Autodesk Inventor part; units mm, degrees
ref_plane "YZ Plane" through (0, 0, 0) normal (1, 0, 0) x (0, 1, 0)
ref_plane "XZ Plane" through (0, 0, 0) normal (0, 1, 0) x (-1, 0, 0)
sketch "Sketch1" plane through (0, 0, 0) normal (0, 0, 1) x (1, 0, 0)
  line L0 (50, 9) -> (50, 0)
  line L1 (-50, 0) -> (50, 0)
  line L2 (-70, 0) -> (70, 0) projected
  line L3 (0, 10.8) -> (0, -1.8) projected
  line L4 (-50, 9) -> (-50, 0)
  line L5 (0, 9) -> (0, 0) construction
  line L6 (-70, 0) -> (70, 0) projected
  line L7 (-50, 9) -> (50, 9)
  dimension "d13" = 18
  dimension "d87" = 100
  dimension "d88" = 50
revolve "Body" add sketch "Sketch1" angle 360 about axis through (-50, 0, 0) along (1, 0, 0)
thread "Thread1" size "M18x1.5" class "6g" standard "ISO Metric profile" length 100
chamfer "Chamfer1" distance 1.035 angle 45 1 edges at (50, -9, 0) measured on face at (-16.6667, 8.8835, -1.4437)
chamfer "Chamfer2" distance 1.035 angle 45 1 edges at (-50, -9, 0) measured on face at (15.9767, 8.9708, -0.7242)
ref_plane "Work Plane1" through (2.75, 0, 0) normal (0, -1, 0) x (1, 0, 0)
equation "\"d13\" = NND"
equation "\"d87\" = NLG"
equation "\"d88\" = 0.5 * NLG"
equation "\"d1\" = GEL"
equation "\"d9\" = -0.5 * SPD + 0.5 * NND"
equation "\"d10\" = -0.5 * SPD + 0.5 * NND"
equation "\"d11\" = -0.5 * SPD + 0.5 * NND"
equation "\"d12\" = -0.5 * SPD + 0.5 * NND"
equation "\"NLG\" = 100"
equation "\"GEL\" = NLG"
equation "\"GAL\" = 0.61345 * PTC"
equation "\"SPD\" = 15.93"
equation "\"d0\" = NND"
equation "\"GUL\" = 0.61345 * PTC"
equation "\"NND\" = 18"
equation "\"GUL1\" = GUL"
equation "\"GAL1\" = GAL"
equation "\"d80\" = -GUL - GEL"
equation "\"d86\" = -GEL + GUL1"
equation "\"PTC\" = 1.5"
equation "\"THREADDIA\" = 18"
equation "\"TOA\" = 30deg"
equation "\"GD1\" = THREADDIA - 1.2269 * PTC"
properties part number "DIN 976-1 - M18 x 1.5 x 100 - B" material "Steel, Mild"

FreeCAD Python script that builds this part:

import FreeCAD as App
import Part
import Sketcher

V = App.Vector
Q = App.Units.Quantity


def edges_at(feature, points):
    """Names of the edges that pass closest to the given points."""
    edges = feature.Shape.Edges
    near = lambda p: min(range(len(edges)), key=lambda i: edges[i].distToShape(Part.Vertex(*p))[0])
    return sorted({f"Edge{near(p) + 1}" for p in points})

doc = App.newDocument("Part")
params = doc.addObject("Spreadsheet::Sheet", "Params")
for row, (alias, value) in enumerate([
    ("sketch1_width", "100 mm"),
    ("sketch1_height", "9 mm"),
    ("revolution_angle", "360 deg"),
    ("chamfer_size", "1.035 mm"),
    ("chamfer2_size", "1.035 mm"),
], start=1):
    params.set(f"A{row}", alias)
    params.set(f"B{row}", "=" + value)
    params.setAlias(f"B{row}", alias)

body = doc.addObject("PartDesign::Body", "Body")

sketch1 = doc.addObject("Sketcher::SketchObject", "Sketch")
body.addObject(sketch1)
sketch1.AttachmentSupport = (doc.XY_Plane, [""])
sketch1.MapMode = "FlatFace"
sketch1.addGeometry([
    Part.LineSegment(V(50, 0, 0), V(50, 9, 0)),
    Part.LineSegment(V(50, 9, 0), V(-50, 9, 0)),
    Part.LineSegment(V(-50, 9, 0), V(-50, 0, 0)),
    Part.LineSegment(V(-50, 0, 0), V(50, 0, 0)),
], False)
sketch1.addConstraint([
    Sketcher.Constraint("Coincident", 0, 2, 1, 1),
    Sketcher.Constraint("Coincident", 1, 2, 2, 1),
    Sketcher.Constraint("Coincident", 2, 2, 3, 1),
    Sketcher.Constraint("Coincident", 3, 2, 0, 1),
    Sketcher.Constraint("Vertical", 0),
    Sketcher.Constraint("Horizontal", 1),
    Sketcher.Constraint("Vertical", 2),
    Sketcher.Constraint("Horizontal", 3),
    Sketcher.Constraint("Symmetric", 2, 2, 3, 2, -1, 1),
    Sketcher.Constraint("DistanceX", 1, 2, 1, 1, Q("100 mm")),
    Sketcher.Constraint("DistanceY", 0, 1, 0, 2, Q("9 mm")),
])
sketch1.setExpression("Constraints[9]", "Params.sketch1_width")
sketch1.setExpression("Constraints[10]", "Params.sketch1_height")
revolution = doc.addObject("PartDesign::Revolution", "Revolution")
body.addObject(revolution)
revolution.Profile = sketch1
revolution.ReferenceAxis = (sketch1, ["H_Axis"])
revolution.setExpression("Angle", "Params.revolution_angle")
doc.recompute()

chamfer = doc.addObject("PartDesign::Chamfer", "Chamfer")
body.addObject(chamfer)
chamfer.Base = (revolution, edges_at(revolution, [(50, -9, 0)]))
chamfer.setExpression("Size", "Params.chamfer_size")
doc.recompute()

chamfer2 = doc.addObject("PartDesign::Chamfer", "Chamfer001")
body.addObject(chamfer2)
chamfer2.Base = (chamfer, edges_at(chamfer, [(-50, -9, 0)]))
chamfer2.setExpression("Size", "Params.chamfer2_size")

doc.recompute()
